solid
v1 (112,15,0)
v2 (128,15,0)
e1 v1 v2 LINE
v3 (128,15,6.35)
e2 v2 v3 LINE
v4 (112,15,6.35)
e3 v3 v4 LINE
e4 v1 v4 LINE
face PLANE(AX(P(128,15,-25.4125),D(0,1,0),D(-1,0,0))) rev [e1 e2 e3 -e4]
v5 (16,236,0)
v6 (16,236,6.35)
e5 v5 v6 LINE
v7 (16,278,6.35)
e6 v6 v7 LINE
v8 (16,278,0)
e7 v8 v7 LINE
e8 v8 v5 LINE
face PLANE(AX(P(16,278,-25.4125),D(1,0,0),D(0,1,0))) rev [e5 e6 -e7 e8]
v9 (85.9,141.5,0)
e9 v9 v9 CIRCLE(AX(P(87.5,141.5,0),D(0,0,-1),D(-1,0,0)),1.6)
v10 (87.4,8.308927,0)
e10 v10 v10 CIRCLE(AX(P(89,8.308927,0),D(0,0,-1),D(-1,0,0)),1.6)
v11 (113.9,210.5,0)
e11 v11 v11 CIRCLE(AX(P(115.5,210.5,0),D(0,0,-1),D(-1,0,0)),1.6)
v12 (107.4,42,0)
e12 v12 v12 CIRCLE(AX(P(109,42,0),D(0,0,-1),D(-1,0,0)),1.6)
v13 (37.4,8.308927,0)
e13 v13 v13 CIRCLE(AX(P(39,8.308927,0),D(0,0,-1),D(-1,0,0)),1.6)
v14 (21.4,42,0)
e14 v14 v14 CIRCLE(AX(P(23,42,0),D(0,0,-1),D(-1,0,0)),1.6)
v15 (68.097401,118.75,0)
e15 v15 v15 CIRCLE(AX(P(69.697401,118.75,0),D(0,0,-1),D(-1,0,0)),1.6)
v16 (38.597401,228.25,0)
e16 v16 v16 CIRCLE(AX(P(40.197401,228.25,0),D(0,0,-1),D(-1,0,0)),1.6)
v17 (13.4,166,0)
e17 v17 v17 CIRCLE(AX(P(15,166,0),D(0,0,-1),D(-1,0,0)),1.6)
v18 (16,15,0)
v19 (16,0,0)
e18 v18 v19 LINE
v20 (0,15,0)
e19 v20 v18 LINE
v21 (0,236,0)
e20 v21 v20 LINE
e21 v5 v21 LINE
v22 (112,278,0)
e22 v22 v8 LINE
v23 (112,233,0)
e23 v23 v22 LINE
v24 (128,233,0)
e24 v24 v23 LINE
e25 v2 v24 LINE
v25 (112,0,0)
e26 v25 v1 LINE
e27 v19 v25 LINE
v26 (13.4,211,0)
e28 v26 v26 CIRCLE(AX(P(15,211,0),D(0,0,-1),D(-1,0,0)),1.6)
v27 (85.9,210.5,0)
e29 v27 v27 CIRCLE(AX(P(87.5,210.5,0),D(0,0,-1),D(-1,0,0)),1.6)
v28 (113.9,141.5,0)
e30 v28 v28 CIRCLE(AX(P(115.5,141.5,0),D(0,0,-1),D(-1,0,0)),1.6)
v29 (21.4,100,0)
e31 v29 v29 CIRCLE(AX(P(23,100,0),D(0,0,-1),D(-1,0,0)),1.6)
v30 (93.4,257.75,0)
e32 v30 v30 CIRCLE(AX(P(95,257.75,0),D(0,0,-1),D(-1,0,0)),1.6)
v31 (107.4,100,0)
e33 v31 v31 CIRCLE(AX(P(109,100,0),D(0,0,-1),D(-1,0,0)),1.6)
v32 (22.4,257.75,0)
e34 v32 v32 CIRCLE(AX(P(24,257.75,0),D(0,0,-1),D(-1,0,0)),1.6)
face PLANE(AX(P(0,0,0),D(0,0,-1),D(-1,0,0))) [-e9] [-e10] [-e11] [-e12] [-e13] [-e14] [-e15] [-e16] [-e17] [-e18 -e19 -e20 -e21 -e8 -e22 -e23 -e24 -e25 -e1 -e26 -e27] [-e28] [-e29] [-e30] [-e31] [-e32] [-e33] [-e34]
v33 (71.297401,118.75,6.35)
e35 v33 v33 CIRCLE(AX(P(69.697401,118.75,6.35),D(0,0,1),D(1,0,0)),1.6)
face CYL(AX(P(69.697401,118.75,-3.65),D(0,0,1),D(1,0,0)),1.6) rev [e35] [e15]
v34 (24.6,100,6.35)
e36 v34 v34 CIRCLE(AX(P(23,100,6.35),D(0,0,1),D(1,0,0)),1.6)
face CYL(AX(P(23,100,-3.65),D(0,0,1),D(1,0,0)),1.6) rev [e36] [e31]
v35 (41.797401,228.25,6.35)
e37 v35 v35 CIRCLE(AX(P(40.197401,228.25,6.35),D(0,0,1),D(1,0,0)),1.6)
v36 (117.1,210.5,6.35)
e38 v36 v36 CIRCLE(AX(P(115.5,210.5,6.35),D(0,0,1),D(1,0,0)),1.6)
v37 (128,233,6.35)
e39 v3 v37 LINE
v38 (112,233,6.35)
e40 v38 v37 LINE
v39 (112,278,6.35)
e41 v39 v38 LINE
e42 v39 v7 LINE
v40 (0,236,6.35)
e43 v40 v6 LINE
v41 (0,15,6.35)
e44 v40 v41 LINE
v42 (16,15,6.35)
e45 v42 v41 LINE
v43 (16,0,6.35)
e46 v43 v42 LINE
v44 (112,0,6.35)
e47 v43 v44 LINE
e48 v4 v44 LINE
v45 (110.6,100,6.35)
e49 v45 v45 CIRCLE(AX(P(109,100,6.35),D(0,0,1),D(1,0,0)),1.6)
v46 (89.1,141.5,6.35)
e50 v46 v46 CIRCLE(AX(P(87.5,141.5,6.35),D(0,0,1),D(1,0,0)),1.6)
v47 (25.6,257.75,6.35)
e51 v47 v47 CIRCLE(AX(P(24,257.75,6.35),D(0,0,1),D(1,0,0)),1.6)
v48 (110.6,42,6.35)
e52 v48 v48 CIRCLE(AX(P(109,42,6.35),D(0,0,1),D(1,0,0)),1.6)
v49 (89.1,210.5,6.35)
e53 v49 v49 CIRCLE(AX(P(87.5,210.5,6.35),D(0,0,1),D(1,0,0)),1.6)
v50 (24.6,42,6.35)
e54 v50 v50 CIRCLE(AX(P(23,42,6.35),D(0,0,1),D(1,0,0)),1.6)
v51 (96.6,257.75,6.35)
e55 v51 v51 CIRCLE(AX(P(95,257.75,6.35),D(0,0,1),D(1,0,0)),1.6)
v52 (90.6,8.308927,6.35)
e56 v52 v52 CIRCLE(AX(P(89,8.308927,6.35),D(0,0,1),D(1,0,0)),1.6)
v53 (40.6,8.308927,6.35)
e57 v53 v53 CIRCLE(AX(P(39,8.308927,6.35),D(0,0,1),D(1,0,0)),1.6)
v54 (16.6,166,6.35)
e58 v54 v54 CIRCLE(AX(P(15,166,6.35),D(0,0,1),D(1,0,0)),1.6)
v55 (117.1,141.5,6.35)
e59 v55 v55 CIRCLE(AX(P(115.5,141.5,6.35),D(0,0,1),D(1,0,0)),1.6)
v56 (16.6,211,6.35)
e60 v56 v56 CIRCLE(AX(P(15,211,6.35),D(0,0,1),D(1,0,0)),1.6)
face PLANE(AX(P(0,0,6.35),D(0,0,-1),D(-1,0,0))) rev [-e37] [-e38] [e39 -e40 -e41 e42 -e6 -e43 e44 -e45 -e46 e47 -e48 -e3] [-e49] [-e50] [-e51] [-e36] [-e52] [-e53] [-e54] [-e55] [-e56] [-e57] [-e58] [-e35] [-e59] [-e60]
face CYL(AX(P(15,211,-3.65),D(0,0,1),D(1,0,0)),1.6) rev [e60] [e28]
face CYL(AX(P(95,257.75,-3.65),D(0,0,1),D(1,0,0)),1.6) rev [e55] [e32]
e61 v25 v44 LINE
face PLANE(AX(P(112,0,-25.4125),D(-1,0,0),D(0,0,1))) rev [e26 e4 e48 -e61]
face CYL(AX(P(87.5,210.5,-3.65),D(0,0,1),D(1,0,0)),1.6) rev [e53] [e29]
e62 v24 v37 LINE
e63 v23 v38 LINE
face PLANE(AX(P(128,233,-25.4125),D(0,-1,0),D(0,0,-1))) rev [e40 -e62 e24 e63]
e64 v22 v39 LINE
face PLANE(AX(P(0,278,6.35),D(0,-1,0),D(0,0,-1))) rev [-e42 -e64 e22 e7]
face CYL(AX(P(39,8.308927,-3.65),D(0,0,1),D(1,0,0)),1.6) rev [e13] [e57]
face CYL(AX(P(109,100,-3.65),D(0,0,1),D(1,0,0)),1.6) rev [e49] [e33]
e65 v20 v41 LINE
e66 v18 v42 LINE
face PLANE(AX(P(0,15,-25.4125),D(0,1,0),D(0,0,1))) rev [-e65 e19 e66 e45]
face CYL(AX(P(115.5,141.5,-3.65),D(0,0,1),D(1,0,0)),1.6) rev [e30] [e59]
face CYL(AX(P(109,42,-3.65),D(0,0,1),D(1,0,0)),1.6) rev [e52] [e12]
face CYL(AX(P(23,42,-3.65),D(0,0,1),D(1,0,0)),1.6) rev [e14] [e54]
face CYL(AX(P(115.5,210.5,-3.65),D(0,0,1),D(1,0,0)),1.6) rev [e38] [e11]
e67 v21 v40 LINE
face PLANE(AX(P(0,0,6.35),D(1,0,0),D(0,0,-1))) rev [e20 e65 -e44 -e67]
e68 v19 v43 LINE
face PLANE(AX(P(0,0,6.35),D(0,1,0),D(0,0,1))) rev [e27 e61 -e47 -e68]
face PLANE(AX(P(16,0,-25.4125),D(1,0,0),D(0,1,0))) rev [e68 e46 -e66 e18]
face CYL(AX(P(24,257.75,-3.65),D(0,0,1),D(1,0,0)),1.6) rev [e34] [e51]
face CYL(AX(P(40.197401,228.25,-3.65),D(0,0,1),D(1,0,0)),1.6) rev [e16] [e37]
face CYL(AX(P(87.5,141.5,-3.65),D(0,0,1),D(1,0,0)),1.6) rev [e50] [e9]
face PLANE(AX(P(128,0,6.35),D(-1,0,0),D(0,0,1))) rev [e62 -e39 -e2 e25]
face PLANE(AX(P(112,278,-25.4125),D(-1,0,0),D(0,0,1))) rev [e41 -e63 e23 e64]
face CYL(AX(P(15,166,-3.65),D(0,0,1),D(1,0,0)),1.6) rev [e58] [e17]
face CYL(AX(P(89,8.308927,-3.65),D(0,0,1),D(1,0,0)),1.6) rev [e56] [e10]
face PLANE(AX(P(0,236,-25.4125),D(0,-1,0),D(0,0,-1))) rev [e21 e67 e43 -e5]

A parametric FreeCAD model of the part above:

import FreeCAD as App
import Part
import Sketcher

V = App.Vector


def add_polygon(sketch, points):
    """Adds a closed chain of lines whose ends are joined by coincident constraints."""
    first, n = sketch.GeometryCount, len(points)
    for a, b in zip(points, points[1:] + points[:1]):
        sketch.addGeometry(Part.LineSegment(App.Vector(*a, 0), App.Vector(*b, 0)), False)
    for i in range(n):
        sketch.addConstraint(Sketcher.Constraint("Coincident", first + i, 2, first + (i + 1) % n, 1))

doc = App.newDocument("Part")
body = doc.addObject("PartDesign::Body", "Body")

sketch1 = doc.addObject("Sketcher::SketchObject", "Sketch")
body.addObject(sketch1)
sketch1.AttachmentSupport = (doc.XY_Plane, [""])
sketch1.MapMode = "FlatFace"
add_polygon(sketch1, [(0, 278), (0, 0), (128, 0), (128, 278)])
sketch1.addConstraint([
    Sketcher.Constraint("Vertical", 0),
    Sketcher.Constraint("Horizontal", 1),
    Sketcher.Constraint("Vertical", 2),
    Sketcher.Constraint("Horizontal", 3),
    Sketcher.Constraint("Coincident", 0, 2, -1, 1),
    Sketcher.Constraint("DistanceX", 1, 1, 1, 2, 128.0),
    Sketcher.Constraint("DistanceY", 0, 2, 0, 1, 278.0),
])
pad1 = doc.addObject("PartDesign::Pad", "Pad")
body.addObject(pad1)
pad1.Profile = sketch1
pad1.Length = 6.35

sketch2 = doc.addObject("Sketcher::SketchObject", "Sketch001")
body.addObject(sketch2)
sketch2.AttachmentSupport = (doc.XY_Plane, [""])
sketch2.MapMode = "FlatFace"
sketch2.AttachmentOffset = App.Placement(V(0, 0, 6.35), App.Rotation())
add_polygon(sketch2, [(0, 278), (0, 236), (16, 236), (16, 278)])
add_polygon(sketch2, [(112, 278), (112, 233), (128, 233), (128, 278)])
add_polygon(sketch2, [(112, 15), (112, 0), (128, 0), (128, 15)])
add_polygon(sketch2, [(0, 15), (0, 0), (16, 0), (16, 15)])
sketch2.addConstraint([
    Sketcher.Constraint("Vertical", 0),
    Sketcher.Constraint("Horizontal", 1),
    Sketcher.Constraint("Vertical", 2),
    Sketcher.Constraint("Horizontal", 3),
    Sketcher.Constraint("Vertical", 4),
    Sketcher.Constraint("Horizontal", 5),
    Sketcher.Constraint("Vertical", 6),
    Sketcher.Constraint("Horizontal", 7),
    Sketcher.Constraint("Vertical", 8),
    Sketcher.Constraint("Horizontal", 9),
    Sketcher.Constraint("Vertical", 10),
    Sketcher.Constraint("Horizontal", 11),
    Sketcher.Constraint("Vertical", 12),
    Sketcher.Constraint("Horizontal", 13),
    Sketcher.Constraint("Vertical", 14),
    Sketcher.Constraint("Horizontal", 15),
    Sketcher.Constraint("Coincident", 12, 2, -1, 1),
    Sketcher.Constraint("PointOnObject", 0, 2, -2),
    Sketcher.Constraint("PointOnObject", 8, 2, -1),
    Sketcher.Constraint("Horizontal", 3, 2, 6, 2),
    Sketcher.Constraint("Horizontal", 11, 2, 14, 2),
    Sketcher.Constraint("Vertical", 7, 2, 8, 2),
    Sketcher.Constraint("Vertical", 6, 2, 9, 2),
    Sketcher.Constraint("Vertical", 2, 2, 13, 2),
    Sketcher.Constraint("Equal", 3, 5),
    Sketcher.Constraint("DistanceX", 1, 1, 1, 2, 16.0),
    Sketcher.Constraint("DistanceY", 0, 2, 0, 1, 42.0),
    Sketcher.Constraint("DistanceY", 4, 2, 4, 1, 45.0),
    Sketcher.Constraint("DistanceY", 8, 2, 8, 1, 15.0),
    Sketcher.Constraint("DistanceY", -1, 1, 0, 2, 236.0),
    Sketcher.Constraint("DistanceX", -1, 1, 4, 2, 112.0),
])
pocket1 = doc.addObject("PartDesign::Pocket", "Pocket")
body.addObject(pocket1)
pocket1.Profile = sketch2
pocket1.Length = 31.7625

sketch3 = doc.addObject("Sketcher::SketchObject", "Sketch002")
body.addObject(sketch3)
sketch3.AttachmentSupport = (doc.XY_Plane, [""])
sketch3.MapMode = "FlatFace"
sketch3.AttachmentOffset = App.Placement(V(0, 0, 6.35), App.Rotation())
sketch3.addGeometry([
    Part.Circle(V(24, 257.8, 0), V(0, 0, 1), 1.6),
    Part.Circle(V(95, 257.8, 0), V(0, 0, 1), 1.6),
    Part.Circle(V(87.5, 210.5, 0), V(0, 0, 1), 1.6),
    Part.Circle(V(115.5, 210.5, 0), V(0, 0, 1), 1.6),
    Part.Circle(V(87.5, 141.5, 0), V(0, 0, 1), 1.6),
    Part.Circle(V(115.5, 141.5, 0), V(0, 0, 1), 1.6),
    Part.Circle(V(69.7, 118.8, 0), V(0, 0, 1), 1.6),
    Part.Circle(V(40.2, 228.2, 0), V(0, 0, 1), 1.6),
    Part.Circle(V(15, 211, 0), V(0, 0, 1), 1.6),
    Part.Circle(V(15, 166, 0), V(0, 0, 1), 1.6),
    Part.Circle(V(39, 8.3, 0), V(0, 0, 1), 1.6),
    Part.Circle(V(89, 8.3, 0), V(0, 0, 1), 1.6),
    Part.Circle(V(23, 100, 0), V(0, 0, 1), 1.6),
    Part.Circle(V(23, 42, 0), V(0, 0, 1), 1.6),
    Part.Circle(V(109, 42, 0), V(0, 0, 1), 1.6),
    Part.Circle(V(109, 100, 0), V(0, 0, 1), 1.6),
], False)
sketch3.addConstraint([
    Sketcher.Constraint("Equal", 0, 1),
    Sketcher.Constraint("Equal", 1, 2),
    Sketcher.Constraint("Equal", 2, 3),
    Sketcher.Constraint("Equal", 3, 4),
    Sketcher.Constraint("Equal", 4, 5),
    Sketcher.Constraint("Equal", 5, 6),
    Sketcher.Constraint("Equal", 6, 7),
    Sketcher.Constraint("Equal", 7, 8),
    Sketcher.Constraint("Equal", 8, 9),
    Sketcher.Constraint("Equal", 9, 10),
    Sketcher.Constraint("Equal", 10, 11),
    Sketcher.Constraint("Equal", 11, 12),
    Sketcher.Constraint("Equal", 12, 13),
    Sketcher.Constraint("Equal", 13, 14),
    Sketcher.Constraint("Equal", 14, 15),
    Sketcher.Constraint("Horizontal", 0, 3, 1, 3),
    Sketcher.Constraint("Horizontal", 2, 3, 3, 3),
    Sketcher.Constraint("Horizontal", 4, 3, 5, 3),
    Sketcher.Constraint("Horizontal", 10, 3, 11, 3),
    Sketcher.Constraint("Horizontal", 13, 3, 14, 3),
    Sketcher.Constraint("Horizontal", 12, 3, 15, 3),
    Sketcher.Constraint("Vertical", 2, 3, 4, 3),
    Sketcher.Constraint("Vertical", 3, 3, 5, 3),
    Sketcher.Constraint("Vertical", 8, 3, 9, 3),
    Sketcher.Constraint("Vertical", 12, 3, 13, 3),
    Sketcher.Constraint("Vertical", 14, 3, 15, 3),
    Sketcher.Constraint("Diameter", 0, 3.2),
    Sketcher.Constraint("DistanceX", -1, 1, 0, 3, 24.0),
    Sketcher.Constraint("DistanceX", -1, 1, 1, 3, 95.0),
    Sketcher.Constraint("DistanceX", -1, 1, 8, 3, 15.0),
    Sketcher.Constraint("DistanceY", -1, 1, 8, 3, 211.0),
    Sketcher.Constraint("DistanceY", -1, 1, 9, 3, 166.0),
    Sketcher.Constraint("DistanceX", -1, 1, 10, 3, 39.0),
    Sketcher.Constraint("DistanceX", -1, 1, 11, 3, 89.0),
    Sketcher.Constraint("DistanceX", -1, 1, 12, 3, 23.0),
    Sketcher.Constraint("DistanceY", -1, 1, 12, 3, 100.0),
    Sketcher.Constraint("DistanceY", -1, 1, 13, 3, 42.0),
    Sketcher.Constraint("DistanceX", -1, 1, 14, 3, 109.0),
    Sketcher.Constraint("DistanceX", 2, 3, 3, 3, 28.0),
    Sketcher.Constraint("DistanceY", 4, 3, 2, 3, 69.0),
    Sketcher.Constraint("DistanceY", 6, 3, 1, 3, 139.0),
    Sketcher.Constraint("DistanceX", -1, 1, 2, 3, 87.5),
    Sketcher.Constraint("DistanceY", -1, 1, 2, 3, 210.5),
    Sketcher.Constraint("DistanceY", 7, 3, 0, 3, 29.5),
    Sketcher.Constraint("DistanceY", -1, 1, 0, 3, 257.75),
    Sketcher.Constraint("DistanceX", -1, 1, 6, 3, 69.697401),
    Sketcher.Constraint("DistanceX", -1, 1, 7, 3, 40.197401),
    Sketcher.Constraint("DistanceY", -1, 1, 10, 3, 8.308927),
])
pocket2 = doc.addObject("PartDesign::Pocket", "Pocket001")
body.addObject(pocket2)
pocket2.Profile = sketch3
pocket2.Length = 10

doc.recompute()
